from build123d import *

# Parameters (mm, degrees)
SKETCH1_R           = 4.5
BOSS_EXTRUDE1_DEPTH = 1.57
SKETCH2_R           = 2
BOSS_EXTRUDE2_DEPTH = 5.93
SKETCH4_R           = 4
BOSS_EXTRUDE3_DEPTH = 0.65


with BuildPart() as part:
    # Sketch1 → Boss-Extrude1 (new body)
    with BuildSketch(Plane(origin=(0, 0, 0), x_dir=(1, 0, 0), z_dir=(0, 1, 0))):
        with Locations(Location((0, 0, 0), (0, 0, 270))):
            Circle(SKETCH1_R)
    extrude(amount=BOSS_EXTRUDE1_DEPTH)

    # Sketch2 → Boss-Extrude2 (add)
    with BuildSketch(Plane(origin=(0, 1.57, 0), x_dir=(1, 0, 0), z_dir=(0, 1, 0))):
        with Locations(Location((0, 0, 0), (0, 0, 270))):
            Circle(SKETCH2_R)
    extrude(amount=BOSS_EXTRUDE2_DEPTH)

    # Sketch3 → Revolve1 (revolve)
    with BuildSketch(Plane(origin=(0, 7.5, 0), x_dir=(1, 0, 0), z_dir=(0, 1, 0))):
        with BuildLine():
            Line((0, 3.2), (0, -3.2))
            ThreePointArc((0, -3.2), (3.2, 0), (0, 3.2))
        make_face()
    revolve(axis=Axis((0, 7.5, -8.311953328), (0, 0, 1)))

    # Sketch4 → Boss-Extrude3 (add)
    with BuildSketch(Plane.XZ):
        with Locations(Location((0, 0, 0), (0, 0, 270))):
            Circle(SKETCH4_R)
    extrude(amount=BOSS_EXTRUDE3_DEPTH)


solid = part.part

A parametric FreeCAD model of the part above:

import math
import FreeCAD as App
import Part
import Sketcher
Q = App.Units.Quantity

doc = App.newDocument("Part")
body = doc.addObject("PartDesign::Body", "Body")

# Sketch on XZ plane
sketch1 = body.newObject("Sketcher::SketchObject", "Sketch")
sketch1.AttachmentSupport = (doc.getObject("XZ_Plane"), [""])
sketch1.MapMode = "FlatFace"
sketch1.addGeometry(Part.Circle(App.Vector(0, 0, 0), App.Vector(0, 0, 1), 4.5), False)
sketch1.addConstraint([
    Sketcher.Constraint("Coincident", 0, 3, -1, 1),
    Sketcher.Constraint("Diameter", 0, Q("9 mm")),
])
pad1 = body.newObject("PartDesign::Pad", "Pad")
pad1.Profile = sketch1
pad1.Length = 1.57
pad1.Reversed = True

# Sketch on XZ plane
sketch2 = body.newObject("Sketcher::SketchObject", "Sketch001")
sketch2.AttachmentSupport = (doc.getObject("XZ_Plane"), [""])
sketch2.MapMode = "FlatFace"
sketch2.AttachmentOffset = App.Placement(App.Vector(0, 0, -1.57), App.Rotation())
sketch2.addGeometry(Part.Circle(App.Vector(0, 0, 0), App.Vector(0, 0, 1), 2), False)
sketch2.addConstraint([
    Sketcher.Constraint("Coincident", 0, 3, -1, 1),
    Sketcher.Constraint("Diameter", 0, Q("4 mm")),
])
pad2 = body.newObject("PartDesign::Pad", "Pad001")
pad2.Profile = sketch2
pad2.Length = 5.93
pad2.Reversed = True

# Sketch on XZ plane
sketch3 = body.newObject("Sketcher::SketchObject", "Sketch002")
sketch3.AttachmentSupport = (doc.getObject("XZ_Plane"), [""])
sketch3.MapMode = "FlatFace"
sketch3.AttachmentOffset = App.Placement(App.Vector(0, 0, -7.5), App.Rotation())
sketch3.addGeometry([
    Part.LineSegment(App.Vector(0, -3.2, 0), App.Vector(0, 3.2, 0)),
    Part.ArcOfCircle(Part.Circle(App.Vector(0, 0, 0), App.Vector(0, 0, 1), 3.2), math.radians(-90), math.radians(90)),
], False)
sketch3.addConstraint([
    Sketcher.Constraint("Coincident", 0, 1, 1, 1),
    Sketcher.Constraint("Coincident", 1, 2, 0, 2),
    Sketcher.Constraint("Vertical", 0),
    Sketcher.Constraint("Coincident", 1, 3, -1, 1),
    Sketcher.Constraint("PointOnObject", 0, 1, -2),
    Sketcher.Constraint("Radius", 1, Q("3.2 mm")),
])
revolution = body.newObject("PartDesign::Revolution", "Revolution")
revolution.Profile = sketch3
revolution.ReferenceAxis = (sketch3, ["V_Axis"])
revolution.Angle = 360

# Sketch on XZ plane
sketch4 = body.newObject("Sketcher::SketchObject", "Sketch003")
sketch4.AttachmentSupport = (doc.getObject("XZ_Plane"), [""])
sketch4.MapMode = "FlatFace"
sketch4.addGeometry(Part.Circle(App.Vector(0, 0, 0), App.Vector(0, 0, 1), 4), False)
sketch4.addConstraint([
    Sketcher.Constraint("Coincident", 0, 3, -1, 1),
    Sketcher.Constraint("Diameter", 0, Q("8 mm")),
])
pad3 = body.newObject("PartDesign::Pad", "Pad002")
pad3.Profile = sketch4
pad3.Length = 0.65

doc.recompute()
